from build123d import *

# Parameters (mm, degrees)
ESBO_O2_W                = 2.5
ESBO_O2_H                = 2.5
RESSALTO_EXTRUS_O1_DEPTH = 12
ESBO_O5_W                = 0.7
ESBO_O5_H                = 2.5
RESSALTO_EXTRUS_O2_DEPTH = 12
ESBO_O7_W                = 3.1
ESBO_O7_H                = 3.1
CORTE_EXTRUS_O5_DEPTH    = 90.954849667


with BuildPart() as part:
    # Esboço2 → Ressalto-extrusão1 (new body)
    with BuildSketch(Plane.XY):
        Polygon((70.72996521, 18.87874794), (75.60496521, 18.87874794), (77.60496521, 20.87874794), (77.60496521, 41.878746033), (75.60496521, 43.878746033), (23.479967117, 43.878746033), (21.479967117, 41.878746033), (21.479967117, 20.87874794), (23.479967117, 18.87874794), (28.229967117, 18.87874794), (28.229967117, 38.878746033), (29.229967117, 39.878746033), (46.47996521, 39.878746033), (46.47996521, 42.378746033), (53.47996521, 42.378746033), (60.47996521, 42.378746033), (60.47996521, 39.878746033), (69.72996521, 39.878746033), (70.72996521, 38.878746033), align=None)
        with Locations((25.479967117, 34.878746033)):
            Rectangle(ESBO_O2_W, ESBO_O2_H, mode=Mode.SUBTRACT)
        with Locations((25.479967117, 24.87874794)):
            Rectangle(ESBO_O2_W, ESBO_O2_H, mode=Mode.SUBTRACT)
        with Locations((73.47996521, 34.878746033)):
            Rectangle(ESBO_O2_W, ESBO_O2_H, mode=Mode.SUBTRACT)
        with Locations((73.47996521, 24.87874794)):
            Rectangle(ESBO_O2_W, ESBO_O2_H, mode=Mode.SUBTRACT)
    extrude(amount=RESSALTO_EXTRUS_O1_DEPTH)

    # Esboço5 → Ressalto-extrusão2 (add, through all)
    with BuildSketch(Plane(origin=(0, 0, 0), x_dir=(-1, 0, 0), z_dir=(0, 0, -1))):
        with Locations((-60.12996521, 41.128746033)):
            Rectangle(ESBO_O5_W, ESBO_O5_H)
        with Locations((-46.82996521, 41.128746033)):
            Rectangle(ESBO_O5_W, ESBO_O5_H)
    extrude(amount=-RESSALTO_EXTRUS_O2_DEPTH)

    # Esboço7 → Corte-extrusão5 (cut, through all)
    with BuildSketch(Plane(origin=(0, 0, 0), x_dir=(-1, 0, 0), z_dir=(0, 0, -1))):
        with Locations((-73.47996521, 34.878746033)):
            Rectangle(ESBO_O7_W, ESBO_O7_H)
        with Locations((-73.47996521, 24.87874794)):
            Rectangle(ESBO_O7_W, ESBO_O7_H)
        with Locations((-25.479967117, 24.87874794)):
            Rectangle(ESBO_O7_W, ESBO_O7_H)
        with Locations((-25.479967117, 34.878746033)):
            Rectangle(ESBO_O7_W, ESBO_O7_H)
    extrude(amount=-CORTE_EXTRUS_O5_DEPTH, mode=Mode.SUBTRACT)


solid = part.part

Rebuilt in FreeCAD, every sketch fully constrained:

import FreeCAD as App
import Part
import Sketcher
from FreeCAD import Vector
Q = App.Units.Quantity

doc = App.newDocument("Part")
body = doc.addObject("PartDesign::Body", "Body")

# Sketch on XY plane
sketch1 = doc.addObject("Sketcher::SketchObject", "Sketch")
body.addObject(sketch1)
sketch1.AttachmentSupport = (doc.XY_Plane, [""])
sketch1.MapMode = "FlatFace"
sketch1.addGeometry(Part.LineSegment(Vector(70.7, 18.9, 0), Vector(75.6, 18.9, 0)), False)
sketch1.addGeometry(Part.LineSegment(Vector(75.6, 18.9, 0), Vector(77.6, 20.9, 0)), False)
sketch1.addGeometry(Part.LineSegment(Vector(77.6, 20.9, 0), Vector(77.6, 41.9, 0)), False)
sketch1.addGeometry(Part.LineSegment(Vector(77.6, 41.9, 0), Vector(75.6, 43.9, 0)), False)
sketch1.addGeometry(Part.LineSegment(Vector(75.6, 43.9, 0), Vector(23.5, 43.9, 0)), False)
sketch1.addGeometry(Part.LineSegment(Vector(23.5, 43.9, 0), Vector(21.5, 41.9, 0)), False)
sketch1.addGeometry(Part.LineSegment(Vector(21.5, 41.9, 0), Vector(21.5, 20.9, 0)), False)
sketch1.addGeometry(Part.LineSegment(Vector(21.5, 20.9, 0), Vector(23.5, 18.9, 0)), False)
sketch1.addGeometry(Part.LineSegment(Vector(23.5, 18.9, 0), Vector(28.2, 18.9, 0)), False)
sketch1.addGeometry(Part.LineSegment(Vector(28.2, 18.9, 0), Vector(28.2, 38.9, 0)), False)
sketch1.addGeometry(Part.LineSegment(Vector(28.2, 38.9, 0), Vector(29.2, 39.9, 0)), False)
sketch1.addGeometry(Part.LineSegment(Vector(29.2, 39.9, 0), Vector(46.5, 39.9, 0)), False)
sketch1.addGeometry(Part.LineSegment(Vector(46.5, 39.9, 0), Vector(46.5, 42.4, 0)), False)
sketch1.addGeometry(Part.LineSegment(Vector(46.5, 42.4, 0), Vector(60.5, 42.4, 0)), False)
sketch1.addGeometry(Part.LineSegment(Vector(60.5, 42.4, 0), Vector(60.5, 39.9, 0)), False)
sketch1.addGeometry(Part.LineSegment(Vector(60.5, 39.9, 0), Vector(69.7, 39.9, 0)), False)
sketch1.addGeometry(Part.LineSegment(Vector(69.7, 39.9, 0), Vector(70.7, 38.9, 0)), False)
sketch1.addGeometry(Part.LineSegment(Vector(70.7, 38.9, 0), Vector(70.7, 18.9, 0)), False)
sketch1.addGeometry(Part.LineSegment(Vector(26.7, 23.6, 0), Vector(24.2, 23.6, 0)), False)
sketch1.addGeometry(Part.LineSegment(Vector(24.2, 23.6, 0), Vector(24.2, 26.1, 0)), False)
sketch1.addGeometry(Part.LineSegment(Vector(24.2, 26.1, 0), Vector(26.7, 26.1, 0)), False)
sketch1.addGeometry(Part.LineSegment(Vector(26.7, 26.1, 0), Vector(26.7, 23.6, 0)), False)
sketch1.addGeometry(Part.LineSegment(Vector(74.7, 23.6, 0), Vector(72.2, 23.6, 0)), False)
sketch1.addGeometry(Part.LineSegment(Vector(72.2, 23.6, 0), Vector(72.2, 26.1, 0)), False)
sketch1.addGeometry(Part.LineSegment(Vector(72.2, 26.1, 0), Vector(74.7, 26.1, 0)), False)
sketch1.addGeometry(Part.LineSegment(Vector(74.7, 26.1, 0), Vector(74.7, 23.6, 0)), False)
sketch1.addGeometry(Part.LineSegment(Vector(26.7, 33.6, 0), Vector(24.2, 33.6, 0)), False)
sketch1.addGeometry(Part.LineSegment(Vector(24.2, 33.6, 0), Vector(24.2, 36.1, 0)), False)
sketch1.addGeometry(Part.LineSegment(Vector(24.2, 36.1, 0), Vector(26.7, 36.1, 0)), False)
sketch1.addGeometry(Part.LineSegment(Vector(26.7, 36.1, 0), Vector(26.7, 33.6, 0)), False)
sketch1.addGeometry(Part.LineSegment(Vector(74.7, 33.6, 0), Vector(72.2, 33.6, 0)), False)
sketch1.addGeometry(Part.LineSegment(Vector(72.2, 33.6, 0), Vector(72.2, 36.1, 0)), False)
sketch1.addGeometry(Part.LineSegment(Vector(72.2, 36.1, 0), Vector(74.7, 36.1, 0)), False)
sketch1.addGeometry(Part.LineSegment(Vector(74.7, 36.1, 0), Vector(74.7, 33.6, 0)), False)
sketch1.addConstraint(Sketcher.Constraint("Coincident", 0, 2, 1, 1))
sketch1.addConstraint(Sketcher.Constraint("Coincident", 1, 2, 2, 1))
sketch1.addConstraint(Sketcher.Constraint("Coincident", 2, 2, 3, 1))
sketch1.addConstraint(Sketcher.Constraint("Coincident", 3, 2, 4, 1))
sketch1.addConstraint(Sketcher.Constraint("Coincident", 4, 2, 5, 1))
sketch1.addConstraint(Sketcher.Constraint("Coincident", 5, 2, 6, 1))
sketch1.addConstraint(Sketcher.Constraint("Coincident", 6, 2, 7, 1))
sketch1.addConstraint(Sketcher.Constraint("Coincident", 7, 2, 8, 1))
sketch1.addConstraint(Sketcher.Constraint("Coincident", 8, 2, 9, 1))
sketch1.addConstraint(Sketcher.Constraint("Coincident", 9, 2, 10, 1))
sketch1.addConstraint(Sketcher.Constraint("Coincident", 10, 2, 11, 1))
sketch1.addConstraint(Sketcher.Constraint("Coincident", 11, 2, 12, 1))
sketch1.addConstraint(Sketcher.Constraint("Coincident", 12, 2, 13, 1))
sketch1.addConstraint(Sketcher.Constraint("Coincident", 13, 2, 14, 1))
sketch1.addConstraint(Sketcher.Constraint("Coincident", 14, 2, 15, 1))
sketch1.addConstraint(Sketcher.Constraint("Coincident", 15, 2, 16, 1))
sketch1.addConstraint(Sketcher.Constraint("Coincident", 16, 2, 17, 1))
sketch1.addConstraint(Sketcher.Constraint("Coincident", 17, 2, 0, 1))
sketch1.addConstraint(Sketcher.Constraint("Coincident", 18, 2, 19, 1))
sketch1.addConstraint(Sketcher.Constraint("Coincident", 19, 2, 20, 1))
sketch1.addConstraint(Sketcher.Constraint("Coincident", 20, 2, 21, 1))
sketch1.addConstraint(Sketcher.Constraint("Coincident", 21, 2, 18, 1))
sketch1.addConstraint(Sketcher.Constraint("Coincident", 22, 2, 23, 1))
sketch1.addConstraint(Sketcher.Constraint("Coincident", 23, 2, 24, 1))
sketch1.addConstraint(Sketcher.Constraint("Coincident", 24, 2, 25, 1))
sketch1.addConstraint(Sketcher.Constraint("Coincident", 25, 2, 22, 1))
sketch1.addConstraint(Sketcher.Constraint("Coincident", 26, 2, 27, 1))
sketch1.addConstraint(Sketcher.Constraint("Coincident", 27, 2, 28, 1))
sketch1.addConstraint(Sketcher.Constraint("Coincident", 28, 2, 29, 1))
sketch1.addConstraint(Sketcher.Constraint("Coincident", 29, 2, 26, 1))
sketch1.addConstraint(Sketcher.Constraint("Coincident", 30, 2, 31, 1))
sketch1.addConstraint(Sketcher.Constraint("Coincident", 31, 2, 32, 1))
sketch1.addConstraint(Sketcher.Constraint("Coincident", 32, 2, 33, 1))
sketch1.addConstraint(Sketcher.Constraint("Coincident", 33, 2, 30, 1))
sketch1.addConstraint(Sketcher.Constraint("Horizontal", 0))
sketch1.addConstraint(Sketcher.Constraint("Vertical", 2))
sketch1.addConstraint(Sketcher.Constraint("Horizontal", 4))
sketch1.addConstraint(Sketcher.Constraint("Vertical", 6))
sketch1.addConstraint(Sketcher.Constraint("Horizontal", 8))
sketch1.addConstraint(Sketcher.Constraint("Vertical", 9))
sketch1.addConstraint(Sketcher.Constraint("Horizontal", 11))
sketch1.addConstraint(Sketcher.Constraint("Vertical", 12))
sketch1.addConstraint(Sketcher.Constraint("Horizontal", 13))
sketch1.addConstraint(Sketcher.Constraint("Vertical", 14))
sketch1.addConstraint(Sketcher.Constraint("Horizontal", 15))
sketch1.addConstraint(Sketcher.Constraint("Vertical", 17))
sketch1.addConstraint(Sketcher.Constraint("Horizontal", 18))
sketch1.addConstraint(Sketcher.Constraint("Vertical", 19))
sketch1.addConstraint(Sketcher.Constraint("Horizontal", 20))
sketch1.addConstraint(Sketcher.Constraint("Vertical", 21))
sketch1.addConstraint(Sketcher.Constraint("Horizontal", 22))
sketch1.addConstraint(Sketcher.Constraint("Vertical", 23))
sketch1.addConstraint(Sketcher.Constraint("Horizontal", 24))
sketch1.addConstraint(Sketcher.Constraint("Vertical", 25))
sketch1.addConstraint(Sketcher.Constraint("Horizontal", 26))
sketch1.addConstraint(Sketcher.Constraint("Vertical", 27))
sketch1.addConstraint(Sketcher.Constraint("Horizontal", 28))
sketch1.addConstraint(Sketcher.Constraint("Vertical", 29))
sketch1.addConstraint(Sketcher.Constraint("Horizontal", 30))
sketch1.addConstraint(Sketcher.Constraint("Vertical", 31))
sketch1.addConstraint(Sketcher.Constraint("Horizontal", 32))
sketch1.addConstraint(Sketcher.Constraint("Vertical", 33))
sketch1.addConstraint(Sketcher.Constraint("Perpendicular", 1, 3))
sketch1.addConstraint(Sketcher.Constraint("Perpendicular", 3, 5))
sketch1.addConstraint(Sketcher.Constraint("Perpendicular", 5, 7))
sketch1.addConstraint(Sketcher.Constraint("Perpendicular", 7, 10))
sketch1.addConstraint(Sketcher.Constraint("Perpendicular", 10, 16))
sketch1.addConstraint(Sketcher.Constraint("Horizontal", 2, 2, 5, 2))
sketch1.addConstraint(Sketcher.Constraint("Horizontal", 1, 2, 6, 2))
sketch1.addConstraint(Sketcher.Constraint("Horizontal", 0, 2, 7, 2))
sketch1.addConstraint(Sketcher.Constraint("Horizontal", 11, 2, 14, 2))
sketch1.addConstraint(Sketcher.Constraint("Horizontal", 9, 2, 16, 2))
sketch1.addConstraint(Sketcher.Constraint("Horizontal", 21, 2, 22, 2))
sketch1.addConstraint(Sketcher.Constraint("Horizontal", 20, 2, 23, 2))
sketch1.addConstraint(Sketcher.Constraint("Horizontal", 29, 2, 30, 2))
sketch1.addConstraint(Sketcher.Constraint("Horizontal", 28, 2, 31, 2))
sketch1.addConstraint(Sketcher.Constraint("Vertical", 0, 2, 3, 2))
sketch1.addConstraint(Sketcher.Constraint("Vertical", 4, 2, 7, 2))
sketch1.addConstraint(Sketcher.Constraint("Vertical", 19, 2, 26, 2))
sketch1.addConstraint(Sketcher.Constraint("Vertical", 21, 2, 28, 2))
sketch1.addConstraint(Sketcher.Constraint("Vertical", 23, 2, 30, 2))
sketch1.addConstraint(Sketcher.Constraint("Vertical", 25, 2, 32, 2))
sketch1.addConstraint(Sketcher.Constraint("Equal", 20, 22))
sketch1.addConstraint(Sketcher.Constraint("Equal", 32, 12))
sketch1.addConstraint(Sketcher.Constraint("Equal", 14, 19))
sketch1.addConstraint(Sketcher.Constraint("Equal", 25, 27))
sketch1.addConstraint(Sketcher.Constraint("DistanceX", 13, 1, 13, 2, Q("14 mm")))
sketch1.addConstraint(Sketcher.Constraint("DistanceY", 2, 1, 2, 2, Q("20.999998 mm")))
sketch1.addConstraint(Sketcher.Constraint("DistanceY", 9, 1, 9, 2, Q("19.999998 mm")))
sketch1.addConstraint(Sketcher.Constraint("DistanceX", 18, 2, 18, 1, Q("2.5 mm")))
sketch1.addConstraint(Sketcher.Constraint("DistanceX", 0, 2, 1, 2, Q("2 mm")))
sketch1.addConstraint(Sketcher.Constraint("DistanceX", 9, 2, 10, 2, Q("1 mm")))
sketch1.addConstraint(Sketcher.Constraint("DistanceX", 4, 2, 11, 2, Q("22.999998 mm")))
sketch1.addConstraint(Sketcher.Constraint("DistanceX", 18, 2, 8, 2, Q("4 mm")))
sketch1.addConstraint(Sketcher.Constraint("DistanceX", 17, 2, 24, 2, Q("4 mm")))
sketch1.addConstraint(Sketcher.Constraint("DistanceX", 8, 1, 8, 2, Q("4.75 mm")))
sketch1.addConstraint(Sketcher.Constraint("DistanceX", 15, 1, 15, 2, Q("9.25 mm")))
sketch1.addConstraint(Sketcher.Constraint("DistanceY", 19, 2, 26, 2, Q("7.499998 mm")))
sketch1.addConstraint(Sketcher.Constraint("DistanceX", 0, 1, 0, 2, Q("4.875 mm")))
sketch1.addConstraint(Sketcher.Constraint("DistanceY", 6, 2, 18, 2, Q("2.75 mm")))
sketch1.addConstraint(Sketcher.Constraint("DistanceX", -1, 1, 0, 2, Q("75.604965 mm")))
sketch1.addConstraint(Sketcher.Constraint("DistanceY", -1, 1, 0, 2, Q("18.878748 mm")))
pad1 = doc.addObject("PartDesign::Pad", "Pad")
body.addObject(pad1)
pad1.Profile = sketch1
pad1.Length = 12

# Sketch on XY plane
sketch2 = doc.addObject("Sketcher::SketchObject", "Sketch001")
body.addObject(sketch2)
sketch2.AttachmentSupport = (doc.XY_Plane, [""])
sketch2.MapMode = "FlatFace"
sketch2.addGeometry(Part.LineSegment(Vector(60.5, 42.4, 0), Vector(60.5, 39.9, 0)), False)
sketch2.addGeometry(Part.LineSegment(Vector(60.5, 39.9, 0), Vector(59.8, 39.9, 0)), False)
sketch2.addGeometry(Part.LineSegment(Vector(59.8, 39.9, 0), Vector(59.8, 42.4, 0)), False)
sketch2.addGeometry(Part.LineSegment(Vector(59.8, 42.4, 0), Vector(60.5, 42.4, 0)), False)
sketch2.addGeometry(Part.LineSegment(Vector(47.2, 42.4, 0), Vector(47.2, 39.9, 0)), False)
sketch2.addGeometry(Part.LineSegment(Vector(47.2, 39.9, 0), Vector(46.5, 39.9, 0)), False)
sketch2.addGeometry(Part.LineSegment(Vector(46.5, 39.9, 0), Vector(46.5, 42.4, 0)), False)
sketch2.addGeometry(Part.LineSegment(Vector(46.5, 42.4, 0), Vector(47.2, 42.4, 0)), False)
sketch2.addConstraint(Sketcher.Constraint("Coincident", 0, 2, 1, 1))
sketch2.addConstraint(Sketcher.Constraint("Coincident", 1, 2, 2, 1))
sketch2.addConstraint(Sketcher.Constraint("Coincident", 2, 2, 3, 1))
sketch2.addConstraint(Sketcher.Constraint("Coincident", 3, 2, 0, 1))
sketch2.addConstraint(Sketcher.Constraint("Coincident", 4, 2, 5, 1))
sketch2.addConstraint(Sketcher.Constraint("Coincident", 5, 2, 6, 1))
sketch2.addConstraint(Sketcher.Constraint("Coincident", 6, 2, 7, 1))
sketch2.addConstraint(Sketcher.Constraint("Coincident", 7, 2, 4, 1))
sketch2.addConstraint(Sketcher.Constraint("Vertical", 0))
sketch2.addConstraint(Sketcher.Constraint("Horizontal", 1))
sketch2.addConstraint(Sketcher.Constraint("Vertical", 2))
sketch2.addConstraint(Sketcher.Constraint("Horizontal", 3))
sketch2.addConstraint(Sketcher.Constraint("Vertical", 4))
sketch2.addConstraint(Sketcher.Constraint("Horizontal", 5))
sketch2.addConstraint(Sketcher.Constraint("Vertical", 6))
sketch2.addConstraint(Sketcher.Constraint("Horizontal", 7))
sketch2.addConstraint(Sketcher.Constraint("Horizontal", 1, 2, 4, 2))
sketch2.addConstraint(Sketcher.Constraint("Horizontal", 3, 2, 6, 2))
sketch2.addConstraint(Sketcher.Constraint("Equal", 3, 5))
sketch2.addConstraint(Sketcher.Constraint("DistanceX", 1, 2, 1, 1, Q("0.7 mm")))
sketch2.addConstraint(Sketcher.Constraint("DistanceY", 0, 2, 0, 1, Q("2.5 mm")))
sketch2.addConstraint(Sketcher.Constraint("DistanceX", 5, 2, 0, 2, Q("14 mm")))
sketch2.addConstraint(Sketcher.Constraint("DistanceX", -1, 1, 0, 2, Q("60.479965 mm")))
sketch2.addConstraint(Sketcher.Constraint("DistanceY", -1, 1, 0, 2, Q("39.878746 mm")))
pad2 = doc.addObject("PartDesign::Pad", "Pad001")
body.addObject(pad2)
pad2.Profile = sketch2
pad2.Length = 12

# Sketch on XY plane
sketch3 = doc.addObject("Sketcher::SketchObject", "Sketch002")
body.addObject(sketch3)
sketch3.AttachmentSupport = (doc.XY_Plane, [""])
sketch3.MapMode = "FlatFace"
sketch3.addGeometry(Part.LineSegment(Vector(75, 36.4, 0), Vector(75, 33.3, 0)), False)
sketch3.addGeometry(Part.LineSegment(Vector(75, 33.3, 0), Vector(71.9, 33.3, 0)), False)
sketch3.addGeometry(Part.LineSegment(Vector(71.9, 33.3, 0), Vector(71.9, 36.4, 0)), False)
sketch3.addGeometry(Part.LineSegment(Vector(71.9, 36.4, 0), Vector(75, 36.4, 0)), False)
sketch3.addGeometry(Part.LineSegment(Vector(75, 26.4, 0), Vector(75, 23.3, 0)), False)
sketch3.addGeometry(Part.LineSegment(Vector(75, 23.3, 0), Vector(71.9, 23.3, 0)), False)
sketch3.addGeometry(Part.LineSegment(Vector(71.9, 23.3, 0), Vector(71.9, 26.4, 0)), False)
sketch3.addGeometry(Part.LineSegment(Vector(71.9, 26.4, 0), Vector(75, 26.4, 0)), False)
sketch3.addGeometry(Part.LineSegment(Vector(27, 26.4, 0), Vector(27, 23.3, 0)), False)
sketch3.addGeometry(Part.LineSegment(Vector(27, 23.3, 0), Vector(23.9, 23.3, 0)), False)
sketch3.addGeometry(Part.LineSegment(Vector(23.9, 23.3, 0), Vector(23.9, 26.4, 0)), False)
sketch3.addGeometry(Part.LineSegment(Vector(23.9, 26.4, 0), Vector(27, 26.4, 0)), False)
sketch3.addGeometry(Part.LineSegment(Vector(27, 36.4, 0), Vector(27, 33.3, 0)), False)
sketch3.addGeometry(Part.LineSegment(Vector(27, 33.3, 0), Vector(23.9, 33.3, 0)), False)
sketch3.addGeometry(Part.LineSegment(Vector(23.9, 33.3, 0), Vector(23.9, 36.4, 0)), False)
sketch3.addGeometry(Part.LineSegment(Vector(23.9, 36.4, 0), Vector(27, 36.4, 0)), False)
sketch3.addConstraint(Sketcher.Constraint("Coincident", 0, 2, 1, 1))
sketch3.addConstraint(Sketcher.Constraint("Coincident", 1, 2, 2, 1))
sketch3.addConstraint(Sketcher.Constraint("Coincident", 2, 2, 3, 1))
sketch3.addConstraint(Sketcher.Constraint("Coincident", 3, 2, 0, 1))
sketch3.addConstraint(Sketcher.Constraint("Coincident", 4, 2, 5, 1))
sketch3.addConstraint(Sketcher.Constraint("Coincident", 5, 2, 6, 1))
sketch3.addConstraint(Sketcher.Constraint("Coincident", 6, 2, 7, 1))
sketch3.addConstraint(Sketcher.Constraint("Coincident", 7, 2, 4, 1))
sketch3.addConstraint(Sketcher.Constraint("Coincident", 8, 2, 9, 1))
sketch3.addConstraint(Sketcher.Constraint("Coincident", 9, 2, 10, 1))
sketch3.addConstraint(Sketcher.Constraint("Coincident", 10, 2, 11, 1))
sketch3.addConstraint(Sketcher.Constraint("Coincident", 11, 2, 8, 1))
sketch3.addConstraint(Sketcher.Constraint("Coincident", 12, 2, 13, 1))
sketch3.addConstraint(Sketcher.Constraint("Coincident", 13, 2, 14, 1))
sketch3.addConstraint(Sketcher.Constraint("Coincident", 14, 2, 15, 1))
sketch3.addConstraint(Sketcher.Constraint("Coincident", 15, 2, 12, 1))
sketch3.addConstraint(Sketcher.Constraint("Vertical", 0))
sketch3.addConstraint(Sketcher.Constraint("Horizontal", 1))
sketch3.addConstraint(Sketcher.Constraint("Vertical", 2))
sketch3.addConstraint(Sketcher.Constraint("Horizontal", 3))
sketch3.addConstraint(Sketcher.Constraint("Vertical", 4))
sketch3.addConstraint(Sketcher.Constraint("Horizontal", 5))
sketch3.addConstraint(Sketcher.Constraint("Vertical", 6))
sketch3.addConstraint(Sketcher.Constraint("Horizontal", 7))
sketch3.addConstraint(Sketcher.Constraint("Vertical", 8))
sketch3.addConstraint(Sketcher.Constraint("Horizontal", 9))
sketch3.addConstraint(Sketcher.Constraint("Vertical", 10))
sketch3.addConstraint(Sketcher.Constraint("Horizontal", 11))
sketch3.addConstraint(Sketcher.Constraint("Vertical", 12))
sketch3.addConstraint(Sketcher.Constraint("Horizontal", 13))
sketch3.addConstraint(Sketcher.Constraint("Vertical", 14))
sketch3.addConstraint(Sketcher.Constraint("Horizontal", 15))
sketch3.addConstraint(Sketcher.Constraint("Horizontal", 5, 2, 8, 2))
sketch3.addConstraint(Sketcher.Constraint("Horizontal", 7, 2, 10, 2))
sketch3.addConstraint(Sketcher.Constraint("Horizontal", 1, 2, 12, 2))
sketch3.addConstraint(Sketcher.Constraint("Horizontal", 3, 2, 14, 2))
sketch3.addConstraint(Sketcher.Constraint("Vertical", 3, 2, 4, 2))
sketch3.addConstraint(Sketcher.Constraint("Vertical", 2, 2, 5, 2))
sketch3.addConstraint(Sketcher.Constraint("Vertical", 11, 2, 12, 2))
sketch3.addConstraint(Sketcher.Constraint("Vertical", 10, 2, 13, 2))
sketch3.addConstraint(Sketcher.Constraint("Equal", 7, 9))
sketch3.addConstraint(Sketcher.Constraint("Equal", 15, 0))
sketch3.addConstraint(Sketcher.Constraint("Equal", 2, 4))
sketch3.addConstraint(Sketcher.Constraint("DistanceX", 1, 2, 1, 1, Q("3.1 mm")))
sketch3.addConstraint(Sketcher.Constraint("DistanceY", 4, 2, 0, 2, Q("9.999998 mm")))
sketch3.addConstraint(Sketcher.Constraint("DistanceX", 8, 2, 4, 2, Q("47.999998 mm")))
sketch3.addConstraint(Sketcher.Constraint("DistanceX", -1, 1, 0, 2, Q("75.029965 mm")))
sketch3.addConstraint(Sketcher.Constraint("DistanceY", -1, 1, 0, 2, Q("33.328746 mm")))
pocket1 = doc.addObject("PartDesign::Pocket", "Pocket")
body.addObject(pocket1)
pocket1.Profile = sketch3
pocket1.Type = "ThroughAll"
pocket1.Reversed = True

doc.recompute()
